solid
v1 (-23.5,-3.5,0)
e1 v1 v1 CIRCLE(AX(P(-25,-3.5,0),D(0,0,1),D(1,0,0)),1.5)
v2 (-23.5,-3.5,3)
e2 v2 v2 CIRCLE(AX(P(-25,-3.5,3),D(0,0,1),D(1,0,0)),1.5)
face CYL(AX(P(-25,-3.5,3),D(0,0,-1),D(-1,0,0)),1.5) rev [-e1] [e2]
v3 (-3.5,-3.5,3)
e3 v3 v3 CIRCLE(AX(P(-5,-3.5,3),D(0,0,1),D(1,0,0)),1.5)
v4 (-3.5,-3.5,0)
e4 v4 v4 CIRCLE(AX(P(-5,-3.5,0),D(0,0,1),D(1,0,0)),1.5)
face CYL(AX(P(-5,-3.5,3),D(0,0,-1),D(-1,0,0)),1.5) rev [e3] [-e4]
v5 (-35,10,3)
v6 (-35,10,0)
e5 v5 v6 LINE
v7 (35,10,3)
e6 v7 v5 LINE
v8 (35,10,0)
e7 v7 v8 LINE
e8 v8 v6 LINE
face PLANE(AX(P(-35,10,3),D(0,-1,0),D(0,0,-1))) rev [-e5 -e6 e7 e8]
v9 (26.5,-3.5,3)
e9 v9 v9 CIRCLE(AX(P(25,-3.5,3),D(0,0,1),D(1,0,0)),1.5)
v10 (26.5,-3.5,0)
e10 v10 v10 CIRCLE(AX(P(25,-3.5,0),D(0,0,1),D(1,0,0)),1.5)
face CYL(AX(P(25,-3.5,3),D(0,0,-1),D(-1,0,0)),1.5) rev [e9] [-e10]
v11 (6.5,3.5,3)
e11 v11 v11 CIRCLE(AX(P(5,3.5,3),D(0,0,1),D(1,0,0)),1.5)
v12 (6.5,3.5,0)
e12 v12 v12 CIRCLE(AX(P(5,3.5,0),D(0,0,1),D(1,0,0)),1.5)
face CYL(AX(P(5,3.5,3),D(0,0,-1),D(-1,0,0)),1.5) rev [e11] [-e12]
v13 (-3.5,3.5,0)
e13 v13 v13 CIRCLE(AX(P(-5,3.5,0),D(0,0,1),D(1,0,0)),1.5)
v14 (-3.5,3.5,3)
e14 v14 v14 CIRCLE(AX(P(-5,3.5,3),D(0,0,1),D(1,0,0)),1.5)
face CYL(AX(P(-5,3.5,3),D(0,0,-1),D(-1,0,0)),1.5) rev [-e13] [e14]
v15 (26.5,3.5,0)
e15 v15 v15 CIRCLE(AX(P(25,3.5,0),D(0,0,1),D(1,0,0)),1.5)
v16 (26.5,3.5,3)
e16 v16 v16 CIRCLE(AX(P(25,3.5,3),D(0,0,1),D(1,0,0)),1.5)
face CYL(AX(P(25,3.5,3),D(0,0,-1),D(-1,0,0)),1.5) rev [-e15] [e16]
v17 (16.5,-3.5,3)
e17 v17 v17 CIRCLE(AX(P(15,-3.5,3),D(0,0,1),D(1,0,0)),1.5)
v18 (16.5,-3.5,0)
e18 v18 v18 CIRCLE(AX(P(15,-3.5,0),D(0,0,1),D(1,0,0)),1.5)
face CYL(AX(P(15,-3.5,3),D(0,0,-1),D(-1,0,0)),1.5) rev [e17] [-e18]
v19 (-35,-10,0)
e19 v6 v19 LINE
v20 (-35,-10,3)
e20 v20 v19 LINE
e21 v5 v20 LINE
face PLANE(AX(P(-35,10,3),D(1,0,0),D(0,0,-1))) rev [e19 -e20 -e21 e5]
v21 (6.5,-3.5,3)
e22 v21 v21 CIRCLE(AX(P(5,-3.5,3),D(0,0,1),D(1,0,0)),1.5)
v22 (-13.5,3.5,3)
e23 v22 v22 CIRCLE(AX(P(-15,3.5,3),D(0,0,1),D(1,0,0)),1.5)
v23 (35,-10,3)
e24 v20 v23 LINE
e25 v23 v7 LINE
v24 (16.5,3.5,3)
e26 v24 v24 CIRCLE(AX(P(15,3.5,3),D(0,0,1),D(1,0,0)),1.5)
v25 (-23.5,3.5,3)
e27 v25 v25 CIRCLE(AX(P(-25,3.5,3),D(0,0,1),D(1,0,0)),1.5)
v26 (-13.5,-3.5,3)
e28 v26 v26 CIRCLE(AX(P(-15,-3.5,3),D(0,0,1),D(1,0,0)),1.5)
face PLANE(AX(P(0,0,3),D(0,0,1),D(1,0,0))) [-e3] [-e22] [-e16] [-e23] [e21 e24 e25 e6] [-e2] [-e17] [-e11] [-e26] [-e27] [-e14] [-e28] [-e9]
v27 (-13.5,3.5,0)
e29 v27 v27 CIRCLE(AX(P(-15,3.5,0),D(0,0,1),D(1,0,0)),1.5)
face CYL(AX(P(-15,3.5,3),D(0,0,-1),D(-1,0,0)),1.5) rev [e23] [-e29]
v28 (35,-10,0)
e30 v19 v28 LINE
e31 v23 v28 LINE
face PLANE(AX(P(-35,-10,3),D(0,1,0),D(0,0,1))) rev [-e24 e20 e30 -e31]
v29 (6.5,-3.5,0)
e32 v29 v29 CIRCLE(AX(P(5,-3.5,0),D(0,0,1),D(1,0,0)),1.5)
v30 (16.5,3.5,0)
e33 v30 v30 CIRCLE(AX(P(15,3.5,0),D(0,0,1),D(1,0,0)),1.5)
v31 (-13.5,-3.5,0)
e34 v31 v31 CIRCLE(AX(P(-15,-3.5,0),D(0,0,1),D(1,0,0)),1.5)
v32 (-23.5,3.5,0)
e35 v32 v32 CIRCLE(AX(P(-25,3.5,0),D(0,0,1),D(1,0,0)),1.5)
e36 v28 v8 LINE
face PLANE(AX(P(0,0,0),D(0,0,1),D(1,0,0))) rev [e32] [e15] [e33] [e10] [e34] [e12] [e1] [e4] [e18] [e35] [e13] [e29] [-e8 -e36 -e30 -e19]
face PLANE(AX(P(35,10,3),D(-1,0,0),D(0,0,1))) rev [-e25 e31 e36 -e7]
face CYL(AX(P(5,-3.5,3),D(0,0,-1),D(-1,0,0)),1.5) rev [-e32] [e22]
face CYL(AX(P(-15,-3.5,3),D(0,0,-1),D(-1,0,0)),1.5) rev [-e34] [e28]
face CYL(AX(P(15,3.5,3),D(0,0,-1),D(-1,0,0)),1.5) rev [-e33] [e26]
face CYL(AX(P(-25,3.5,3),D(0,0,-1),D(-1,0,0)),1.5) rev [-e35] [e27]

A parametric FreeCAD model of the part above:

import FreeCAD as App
import Part
import Sketcher
from FreeCAD import Vector
Q = App.Units.Quantity


def add_polygon(sketch, points):
    """Adds a closed chain of lines whose ends are joined by coincident constraints."""
    first, n = sketch.GeometryCount, len(points)
    for a, b in zip(points, points[1:] + points[:1]):
        sketch.addGeometry(Part.LineSegment(App.Vector(*a, 0), App.Vector(*b, 0)), False)
    for i in range(n):
        sketch.addConstraint(Sketcher.Constraint("Coincident", first + i, 2, first + (i + 1) % n, 1))

doc = App.newDocument("Part")
body = doc.addObject("PartDesign::Body", "Body")

# Sketch on XY plane
sketch1 = body.newObject("Sketcher::SketchObject", "Sketch")
sketch1.AttachmentSupport = (doc.getObject("XY_Plane"), [""])
sketch1.MapMode = "FlatFace"
add_polygon(sketch1, [(-35, 10), (-35, -10), (35, -10), (35, 10)])  # lines 0-3
sketch1.addGeometry(Part.Circle(Vector(-25, -3.5, 0), Vector(0, 0, 1), 1.5), False)  # 4
sketch1.addGeometry(Part.Circle(Vector(-15, -3.5, 0), Vector(0, 0, 1), 1.5), False)  # 5
sketch1.addGeometry(Part.Circle(Vector(-5, -3.5, 0), Vector(0, 0, 1), 1.5), False)  # 6
sketch1.addGeometry(Part.Circle(Vector(5, -3.5, 0), Vector(0, 0, 1), 1.5), False)  # 7
sketch1.addGeometry(Part.Circle(Vector(15, -3.5, 0), Vector(0, 0, 1), 1.5), False)  # 8
sketch1.addGeometry(Part.Circle(Vector(25, -3.5, 0), Vector(0, 0, 1), 1.5), False)  # 9
sketch1.addGeometry(Part.Circle(Vector(-25, 3.5, 0), Vector(0, 0, 1), 1.5), False)  # 10
sketch1.addGeometry(Part.Circle(Vector(-15, 3.5, 0), Vector(0, 0, 1), 1.5), False)  # 11
sketch1.addGeometry(Part.Circle(Vector(-5, 3.5, 0), Vector(0, 0, 1), 1.5), False)  # 12
sketch1.addGeometry(Part.Circle(Vector(5, 3.5, 0), Vector(0, 0, 1), 1.5), False)  # 13
sketch1.addGeometry(Part.Circle(Vector(15, 3.5, 0), Vector(0, 0, 1), 1.5), False)  # 14
sketch1.addGeometry(Part.Circle(Vector(25, 3.5, 0), Vector(0, 0, 1), 1.5), False)  # 15
sketch1.addConstraint([
    Sketcher.Constraint("Vertical", 0),
    Sketcher.Constraint("Horizontal", 1),
    Sketcher.Constraint("Vertical", 2),
    Sketcher.Constraint("Horizontal", 3),
    Sketcher.Constraint("Equal", 4, 5),
    Sketcher.Constraint("Equal", 5, 6),
    Sketcher.Constraint("Equal", 6, 7),
    Sketcher.Constraint("Equal", 7, 8),
    Sketcher.Constraint("Equal", 8, 9),
    Sketcher.Constraint("Equal", 9, 10),
    Sketcher.Constraint("Equal", 10, 11),
    Sketcher.Constraint("Equal", 11, 12),
    Sketcher.Constraint("Equal", 12, 13),
    Sketcher.Constraint("Equal", 13, 14),
    Sketcher.Constraint("Equal", 14, 15),
    Sketcher.Constraint("Symmetric", 9, 3, 10, 3, -1, 1),
    Sketcher.Constraint("Symmetric", 8, 3, 11, 3, -1, 1),
    Sketcher.Constraint("Symmetric", 7, 3, 12, 3, -1, 1),
    Sketcher.Constraint("Symmetric", 6, 3, 13, 3, -1, 1),
    Sketcher.Constraint("Symmetric", 5, 3, 14, 3, -1, 1),
    Sketcher.Constraint("Symmetric", 4, 3, 15, 3, -1, 1),
    Sketcher.Constraint("Symmetric", 0, 2, 2, 2, -1, 1),
    Sketcher.Constraint("Symmetric", 6, 3, 7, 3, -2),
    Sketcher.Constraint("Symmetric", 5, 3, 8, 3, -2),
    Sketcher.Constraint("Symmetric", 4, 3, 9, 3, -2),
    Sketcher.Constraint("Horizontal", 4, 3, 5, 3),
    Sketcher.Constraint("Horizontal", 5, 3, 6, 3),
    Sketcher.Constraint("Diameter", 4, Q("3 mm")),
    Sketcher.Constraint("DistanceX", 1, 1, 1, 2, Q("70 mm")),
    Sketcher.Constraint("DistanceY", 0, 2, 0, 1, Q("20 mm")),
    Sketcher.Constraint("DistanceX", 4, 3, -1, 1, Q("25 mm")),
    Sketcher.Constraint("DistanceX", 5, 3, -1, 1, Q("15 mm")),
    Sketcher.Constraint("DistanceX", 6, 3, -1, 1, Q("5 mm")),
    Sketcher.Constraint("DistanceY", 4, 3, 10, 3, Q("7 mm")),
])
pad1 = body.newObject("PartDesign::Pad", "Pad")
pad1.Profile = sketch1
pad1.Length = 3

doc.recompute()
